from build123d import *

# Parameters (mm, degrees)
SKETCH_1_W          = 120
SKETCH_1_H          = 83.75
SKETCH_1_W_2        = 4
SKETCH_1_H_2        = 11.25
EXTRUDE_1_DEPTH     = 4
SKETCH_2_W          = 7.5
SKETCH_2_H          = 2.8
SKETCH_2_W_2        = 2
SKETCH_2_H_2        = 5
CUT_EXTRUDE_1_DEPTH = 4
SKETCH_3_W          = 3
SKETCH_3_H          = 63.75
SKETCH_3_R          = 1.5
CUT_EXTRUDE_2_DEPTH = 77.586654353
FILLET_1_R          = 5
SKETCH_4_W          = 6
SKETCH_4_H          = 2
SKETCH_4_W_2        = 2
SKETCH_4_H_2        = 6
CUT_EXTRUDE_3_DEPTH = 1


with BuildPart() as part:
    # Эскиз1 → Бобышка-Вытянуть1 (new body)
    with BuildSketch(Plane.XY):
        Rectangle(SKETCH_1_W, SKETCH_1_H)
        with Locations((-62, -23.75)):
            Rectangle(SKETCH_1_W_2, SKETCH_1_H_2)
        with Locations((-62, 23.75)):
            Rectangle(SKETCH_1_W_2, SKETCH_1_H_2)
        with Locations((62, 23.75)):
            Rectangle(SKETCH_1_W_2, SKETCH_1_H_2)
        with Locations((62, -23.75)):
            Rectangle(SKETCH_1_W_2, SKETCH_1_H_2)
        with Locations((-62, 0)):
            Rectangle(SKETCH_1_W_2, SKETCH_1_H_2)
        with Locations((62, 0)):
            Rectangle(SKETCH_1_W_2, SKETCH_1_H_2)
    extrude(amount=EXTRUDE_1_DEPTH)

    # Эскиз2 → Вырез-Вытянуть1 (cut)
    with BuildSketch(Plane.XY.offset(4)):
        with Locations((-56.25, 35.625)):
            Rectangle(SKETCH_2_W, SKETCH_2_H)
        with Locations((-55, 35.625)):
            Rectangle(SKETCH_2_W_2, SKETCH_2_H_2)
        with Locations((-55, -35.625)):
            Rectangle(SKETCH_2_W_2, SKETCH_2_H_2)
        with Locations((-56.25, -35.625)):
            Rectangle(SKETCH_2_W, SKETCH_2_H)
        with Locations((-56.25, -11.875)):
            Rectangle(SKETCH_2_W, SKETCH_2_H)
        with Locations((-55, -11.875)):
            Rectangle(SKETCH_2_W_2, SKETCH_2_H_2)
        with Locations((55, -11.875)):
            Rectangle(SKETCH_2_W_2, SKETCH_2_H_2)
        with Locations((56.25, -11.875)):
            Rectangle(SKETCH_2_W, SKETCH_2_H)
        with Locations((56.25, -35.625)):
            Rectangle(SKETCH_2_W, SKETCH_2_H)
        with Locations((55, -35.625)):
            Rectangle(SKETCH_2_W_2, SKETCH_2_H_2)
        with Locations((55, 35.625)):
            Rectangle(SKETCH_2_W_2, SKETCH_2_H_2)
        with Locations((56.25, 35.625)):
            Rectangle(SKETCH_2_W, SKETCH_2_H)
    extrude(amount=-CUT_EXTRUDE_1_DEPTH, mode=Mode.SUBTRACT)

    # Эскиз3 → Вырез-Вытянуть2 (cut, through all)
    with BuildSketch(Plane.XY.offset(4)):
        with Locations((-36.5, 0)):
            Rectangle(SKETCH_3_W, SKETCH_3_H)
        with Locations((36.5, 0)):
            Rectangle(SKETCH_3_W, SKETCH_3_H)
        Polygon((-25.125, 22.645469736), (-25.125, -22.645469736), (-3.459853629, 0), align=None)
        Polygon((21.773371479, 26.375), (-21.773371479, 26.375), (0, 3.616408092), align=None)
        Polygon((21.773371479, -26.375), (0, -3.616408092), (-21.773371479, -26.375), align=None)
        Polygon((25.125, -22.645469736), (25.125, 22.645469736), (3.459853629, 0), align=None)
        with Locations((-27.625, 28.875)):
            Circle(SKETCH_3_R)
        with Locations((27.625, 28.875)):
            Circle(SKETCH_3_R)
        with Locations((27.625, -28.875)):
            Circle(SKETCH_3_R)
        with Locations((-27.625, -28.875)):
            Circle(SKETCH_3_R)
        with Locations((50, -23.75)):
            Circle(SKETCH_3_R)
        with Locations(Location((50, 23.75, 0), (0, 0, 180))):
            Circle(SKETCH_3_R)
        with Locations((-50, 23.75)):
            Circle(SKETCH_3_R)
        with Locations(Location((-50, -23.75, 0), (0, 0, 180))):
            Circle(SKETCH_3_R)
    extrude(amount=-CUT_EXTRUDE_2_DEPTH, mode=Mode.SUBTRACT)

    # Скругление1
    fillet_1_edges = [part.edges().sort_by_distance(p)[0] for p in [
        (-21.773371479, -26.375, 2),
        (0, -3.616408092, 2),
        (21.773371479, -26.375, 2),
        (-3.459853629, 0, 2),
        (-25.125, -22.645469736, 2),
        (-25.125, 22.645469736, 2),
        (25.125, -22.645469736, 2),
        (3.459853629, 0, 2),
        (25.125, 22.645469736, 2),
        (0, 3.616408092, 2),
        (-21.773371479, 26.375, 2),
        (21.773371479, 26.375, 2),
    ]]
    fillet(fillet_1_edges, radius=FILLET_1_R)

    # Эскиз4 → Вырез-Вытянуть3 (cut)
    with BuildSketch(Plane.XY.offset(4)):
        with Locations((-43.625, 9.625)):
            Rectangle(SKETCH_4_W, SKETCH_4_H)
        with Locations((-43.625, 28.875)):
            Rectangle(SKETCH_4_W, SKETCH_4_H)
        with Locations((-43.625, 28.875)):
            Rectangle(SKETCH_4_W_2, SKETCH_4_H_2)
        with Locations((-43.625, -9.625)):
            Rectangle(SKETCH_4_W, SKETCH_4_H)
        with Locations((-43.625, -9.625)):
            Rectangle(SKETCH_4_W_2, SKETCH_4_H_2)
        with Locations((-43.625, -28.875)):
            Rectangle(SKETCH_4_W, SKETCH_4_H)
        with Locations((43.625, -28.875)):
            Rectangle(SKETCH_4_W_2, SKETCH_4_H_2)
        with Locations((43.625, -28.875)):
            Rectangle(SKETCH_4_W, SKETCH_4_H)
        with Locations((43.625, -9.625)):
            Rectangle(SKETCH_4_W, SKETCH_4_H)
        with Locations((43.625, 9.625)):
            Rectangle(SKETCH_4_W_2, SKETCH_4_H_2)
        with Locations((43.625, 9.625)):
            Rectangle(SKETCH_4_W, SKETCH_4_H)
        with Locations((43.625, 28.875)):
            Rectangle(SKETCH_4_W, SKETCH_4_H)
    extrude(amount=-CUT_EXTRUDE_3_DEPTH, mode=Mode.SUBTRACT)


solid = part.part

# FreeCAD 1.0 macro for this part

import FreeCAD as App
import Part
import Sketcher
from FreeCAD import Vector


def edges_at(feature, points):
    """Names of the edges that pass closest to the given points."""
    edges = feature.Shape.Edges
    near = lambda p: min(range(len(edges)), key=lambda i: edges[i].distToShape(Part.Vertex(*p))[0])
    return sorted({f"Edge{near(p) + 1}" for p in points})

doc = App.newDocument("Part")
body = doc.addObject("PartDesign::Body", "Body")

# Sketch on XY plane
sketch1 = doc.addObject("Sketcher::SketchObject", "Sketch")
body.addObject(sketch1)
sketch1.AttachmentSupport = (doc.XY_Plane, [""])
sketch1.MapMode = "FlatFace"
sketch1.addGeometry([
    Part.LineSegment(Vector(-60, -29.4, 0), Vector(-60, -41.9, 0)),  # 0
    Part.LineSegment(Vector(-60, -41.9, 0), Vector(60, -41.9, 0)),  # 1
    Part.LineSegment(Vector(60, -41.9, 0), Vector(60, -29.4, 0)),  # 2
    Part.LineSegment(Vector(60, -29.4, 0), Vector(64, -29.4, 0)),  # 3
    Part.LineSegment(Vector(64, -29.4, 0), Vector(64, -18.1, 0)),  # 4
    Part.LineSegment(Vector(64, -18.1, 0), Vector(60, -18.1, 0)),  # 5
    Part.LineSegment(Vector(60, -18.1, 0), Vector(60, -5.6, 0)),  # 6
    Part.LineSegment(Vector(60, -5.6, 0), Vector(64, -5.6, 0)),  # 7
    Part.LineSegment(Vector(64, -5.6, 0), Vector(64, 5.6, 0)),  # 8
    Part.LineSegment(Vector(64, 5.6, 0), Vector(60, 5.6, 0)),  # 9
    Part.LineSegment(Vector(60, 5.6, 0), Vector(60, 18.1, 0)),  # 10
    Part.LineSegment(Vector(60, 18.1, 0), Vector(64, 18.1, 0)),  # 11
    Part.LineSegment(Vector(64, 18.1, 0), Vector(64, 29.4, 0)),  # 12
    Part.LineSegment(Vector(64, 29.4, 0), Vector(60, 29.4, 0)),  # 13
    Part.LineSegment(Vector(60, 29.4, 0), Vector(60, 41.9, 0)),  # 14
    Part.LineSegment(Vector(60, 41.9, 0), Vector(-60, 41.9, 0)),  # 15
    Part.LineSegment(Vector(-60, 41.9, 0), Vector(-60, 29.4, 0)),  # 16
    Part.LineSegment(Vector(-60, 29.4, 0), Vector(-64, 29.4, 0)),  # 17
    Part.LineSegment(Vector(-64, 29.4, 0), Vector(-64, 18.1, 0)),  # 18
    Part.LineSegment(Vector(-64, 18.1, 0), Vector(-60, 18.1, 0)),  # 19
    Part.LineSegment(Vector(-60, 18.1, 0), Vector(-60, 5.6, 0)),  # 20
    Part.LineSegment(Vector(-60, 5.6, 0), Vector(-64, 5.6, 0)),  # 21
    Part.LineSegment(Vector(-64, 5.6, 0), Vector(-64, -5.6, 0)),  # 22
    Part.LineSegment(Vector(-64, -5.6, 0), Vector(-60, -5.6, 0)),  # 23
    Part.LineSegment(Vector(-60, -5.6, 0), Vector(-60, -18.1, 0)),  # 24
    Part.LineSegment(Vector(-60, -18.1, 0), Vector(-64, -18.1, 0)),  # 25
    Part.LineSegment(Vector(-64, -18.1, 0), Vector(-64, -29.4, 0)),  # 26
    Part.LineSegment(Vector(-64, -29.4, 0), Vector(-60, -29.4, 0)),  # 27
], False)
sketch1.addConstraint([
    Sketcher.Constraint("Coincident", 0, 2, 1, 1),
    Sketcher.Constraint("Coincident", 1, 2, 2, 1),
    Sketcher.Constraint("Coincident", 2, 2, 3, 1),
    Sketcher.Constraint("Coincident", 3, 2, 4, 1),
    Sketcher.Constraint("Coincident", 4, 2, 5, 1),
    Sketcher.Constraint("Coincident", 5, 2, 6, 1),
    Sketcher.Constraint("Coincident", 6, 2, 7, 1),
    Sketcher.Constraint("Coincident", 7, 2, 8, 1),
    Sketcher.Constraint("Coincident", 8, 2, 9, 1),
    Sketcher.Constraint("Coincident", 9, 2, 10, 1),
    Sketcher.Constraint("Coincident", 10, 2, 11, 1),
    Sketcher.Constraint("Coincident", 11, 2, 12, 1),
    Sketcher.Constraint("Coincident", 12, 2, 13, 1),
    Sketcher.Constraint("Coincident", 13, 2, 14, 1),
    Sketcher.Constraint("Coincident", 14, 2, 15, 1),
    Sketcher.Constraint("Coincident", 15, 2, 16, 1),
    Sketcher.Constraint("Coincident", 16, 2, 17, 1),
    Sketcher.Constraint("Coincident", 17, 2, 18, 1),
    Sketcher.Constraint("Coincident", 18, 2, 19, 1),
    Sketcher.Constraint("Coincident", 19, 2, 20, 1),
    Sketcher.Constraint("Coincident", 20, 2, 21, 1),
    Sketcher.Constraint("Coincident", 21, 2, 22, 1),
    Sketcher.Constraint("Coincident", 22, 2, 23, 1),
    Sketcher.Constraint("Coincident", 23, 2, 24, 1),
    Sketcher.Constraint("Coincident", 24, 2, 25, 1),
    Sketcher.Constraint("Coincident", 25, 2, 26, 1),
    Sketcher.Constraint("Coincident", 26, 2, 27, 1),
    Sketcher.Constraint("Coincident", 27, 2, 0, 1),
    Sketcher.Constraint("Vertical", 0),
    Sketcher.Constraint("Horizontal", 1),
    Sketcher.Constraint("Vertical", 2),
    Sketcher.Constraint("Horizontal", 3),
    Sketcher.Constraint("Vertical", 4),
    Sketcher.Constraint("Horizontal", 5),
    Sketcher.Constraint("Vertical", 6),
    Sketcher.Constraint("Horizontal", 7),
    Sketcher.Constraint("Vertical", 8),
    Sketcher.Constraint("Horizontal", 9),
    Sketcher.Constraint("Vertical", 10),
    Sketcher.Constraint("Horizontal", 11),
    Sketcher.Constraint("Vertical", 12),
    Sketcher.Constraint("Horizontal", 13),
    Sketcher.Constraint("Vertical", 14),
    Sketcher.Constraint("Horizontal", 15),
    Sketcher.Constraint("Vertical", 16),
    Sketcher.Constraint("Horizontal", 17),
    Sketcher.Constraint("Vertical", 18),
    Sketcher.Constraint("Horizontal", 19),
    Sketcher.Constraint("Vertical", 20),
    Sketcher.Constraint("Horizontal", 21),
    Sketcher.Constraint("Vertical", 22),
    Sketcher.Constraint("Horizontal", 23),
    Sketcher.Constraint("Vertical", 24),
    Sketcher.Constraint("Horizontal", 25),
    Sketcher.Constraint("Vertical", 26),
    Sketcher.Constraint("Horizontal", 27),
    Sketcher.Constraint("Symmetric", 0, 2, 14, 2, -1, 1),
    Sketcher.Constraint("Symmetric", 2, 2, 16, 2, -1, 1),
    Sketcher.Constraint("Symmetric", 4, 2, 18, 2, -1, 1),
    Sketcher.Constraint("Symmetric", 6, 2, 20, 2, -1, 1),
    Sketcher.Constraint("Symmetric", 8, 2, 22, 2, -1, 1),
    Sketcher.Constraint("Symmetric", 10, 2, 24, 2, -1, 1),
    Sketcher.Constraint("Symmetric", 12, 2, 26, 2, -1, 1),
    Sketcher.Constraint("Symmetric", 13, 2, 16, 2, -2),
    Sketcher.Constraint("Symmetric", 11, 2, 18, 2, -2),
    Sketcher.Constraint("Symmetric", 9, 2, 20, 2, -2),
    Sketcher.Constraint("Vertical", 2, 2, 5, 2),
    Sketcher.Constraint("Vertical", 4, 2, 7, 2),
    Sketcher.Constraint("Equal", 2, 6),
    Sketcher.Constraint("Equal", 4, 8),
    Sketcher.Constraint("DistanceX", 1, 1, 1, 2, 120.0),
    Sketcher.Constraint("DistanceX", 3, 1, 3, 2, 4.0),
    Sketcher.Constraint("DistanceY", 0, 2, 0, 1, 12.5),
    Sketcher.Constraint("DistanceY", 3, 2, 8, 2, 35.0),
])
pad1 = doc.addObject("PartDesign::Pad", "Pad")
body.addObject(pad1)
pad1.Profile = sketch1
pad1.Length = 4

# Sketch on XY plane
sketch2 = doc.addObject("Sketcher::SketchObject", "Sketch001")
body.addObject(sketch2)
sketch2.AttachmentSupport = (doc.XY_Plane, [""])
sketch2.MapMode = "FlatFace"
sketch2.AttachmentOffset = App.Placement(Vector(0, 0, 4), App.Rotation())
sketch2.addGeometry([
    Part.LineSegment(Vector(-60, 37, 0), Vector(-60, 34.2, 0)),  # 0
    Part.LineSegment(Vector(-60, 34.2, 0), Vector(-56, 34.2, 0)),  # 1
    Part.LineSegment(Vector(-56, 34.2, 0), Vector(-56, 33.1, 0)),  # 2
    Part.LineSegment(Vector(-56, 33.1, 0), Vector(-54, 33.1, 0)),  # 3
    Part.LineSegment(Vector(-54, 33.1, 0), Vector(-54, 34.2, 0)),  # 4
    Part.LineSegment(Vector(-54, 34.2, 0), Vector(-52.5, 34.2, 0)),  # 5
    Part.LineSegment(Vector(-52.5, 34.2, 0), Vector(-52.5, 37, 0)),  # 6
    Part.LineSegment(Vector(-52.5, 37, 0), Vector(-54, 37, 0)),  # 7
    Part.LineSegment(Vector(-54, 37, 0), Vector(-54, 38.1, 0)),  # 8
    Part.LineSegment(Vector(-54, 38.1, 0), Vector(-56, 38.1, 0)),  # 9
    Part.LineSegment(Vector(-56, 38.1, 0), Vector(-56, 37, 0)),  # 10
    Part.LineSegment(Vector(-56, 37, 0), Vector(-60, 37, 0)),  # 11
    Part.LineSegment(Vector(-56, -37, 0), Vector(-56, -38.1, 0)),  # 12
    Part.LineSegment(Vector(-56, -38.1, 0), Vector(-54, -38.1, 0)),  # 13
    Part.LineSegment(Vector(-54, -38.1, 0), Vector(-54, -37, 0)),  # 14
    Part.LineSegment(Vector(-54, -37, 0), Vector(-52.5, -37, 0)),  # 15
    Part.LineSegment(Vector(-52.5, -37, 0), Vector(-52.5, -34.2, 0)),  # 16
    Part.LineSegment(Vector(-52.5, -34.2, 0), Vector(-54, -34.2, 0)),  # 17
    Part.LineSegment(Vector(-54, -34.2, 0), Vector(-54, -33.1, 0)),  # 18
    Part.LineSegment(Vector(-54, -33.1, 0), Vector(-56, -33.1, 0)),  # 19
    Part.LineSegment(Vector(-56, -33.1, 0), Vector(-56, -34.2, 0)),  # 20
    Part.LineSegment(Vector(-56, -34.2, 0), Vector(-60, -34.2, 0)),  # 21
    Part.LineSegment(Vector(-60, -34.2, 0), Vector(-60, -37, 0)),  # 22
    Part.LineSegment(Vector(-60, -37, 0), Vector(-56, -37, 0)),  # 23
    Part.LineSegment(Vector(-60, -10.5, 0), Vector(-60, -13.3, 0)),  # 24
    Part.LineSegment(Vector(-60, -13.3, 0), Vector(-56, -13.3, 0)),  # 25
    Part.LineSegment(Vector(-56, -13.3, 0), Vector(-56, -14.4, 0)),  # 26
    Part.LineSegment(Vector(-56, -14.4, 0), Vector(-54, -14.4, 0)),  # 27
    Part.LineSegment(Vector(-54, -14.4, 0), Vector(-54, -13.3, 0)),  # 28
    Part.LineSegment(Vector(-54, -13.3, 0), Vector(-52.5, -13.3, 0)),  # 29
    Part.LineSegment(Vector(-52.5, -13.3, 0), Vector(-52.5, -10.5, 0)),  # 30
    Part.LineSegment(Vector(-52.5, -10.5, 0), Vector(-54, -10.5, 0)),  # 31
    Part.LineSegment(Vector(-54, -10.5, 0), Vector(-54, -9.4, 0)),  # 32
    Part.LineSegment(Vector(-54, -9.4, 0), Vector(-56, -9.4, 0)),  # 33
    Part.LineSegment(Vector(-56, -9.4, 0), Vector(-56, -10.5, 0)),  # 34
    Part.LineSegment(Vector(-56, -10.5, 0), Vector(-60, -10.5, 0)),  # 35
    Part.LineSegment(Vector(54, -13.3, 0), Vector(54, -14.4, 0)),  # 36
    Part.LineSegment(Vector(54, -14.4, 0), Vector(56, -14.4, 0)),  # 37
    Part.LineSegment(Vector(56, -14.4, 0), Vector(56, -13.3, 0)),  # 38
    Part.LineSegment(Vector(56, -13.3, 0), Vector(60, -13.3, 0)),  # 39
    Part.LineSegment(Vector(60, -13.3, 0), Vector(60, -10.5, 0)),  # 40
    Part.LineSegment(Vector(60, -10.5, 0), Vector(56, -10.5, 0)),  # 41
    Part.LineSegment(Vector(56, -10.5, 0), Vector(56, -9.4, 0)),  # 42
    Part.LineSegment(Vector(56, -9.4, 0), Vector(54, -9.4, 0)),  # 43
    Part.LineSegment(Vector(54, -9.4, 0), Vector(54, -10.5, 0)),  # 44
    Part.LineSegment(Vector(54, -10.5, 0), Vector(52.5, -10.5, 0)),  # 45
    Part.LineSegment(Vector(52.5, -10.5, 0), Vector(52.5, -13.3, 0)),  # 46
    Part.LineSegment(Vector(52.5, -13.3, 0), Vector(54, -13.3, 0)),  # 47
    Part.LineSegment(Vector(52.5, -34.2, 0), Vector(52.5, -37, 0)),  # 48
    Part.LineSegment(Vector(52.5, -37, 0), Vector(54, -37, 0)),  # 49
    Part.LineSegment(Vector(54, -37, 0), Vector(54, -38.1, 0)),  # 50
    Part.LineSegment(Vector(54, -38.1, 0), Vector(56, -38.1, 0)),  # 51
    Part.LineSegment(Vector(56, -38.1, 0), Vector(56, -37, 0)),  # 52
    Part.LineSegment(Vector(56, -37, 0), Vector(60, -37, 0)),  # 53
    Part.LineSegment(Vector(60, -37, 0), Vector(60, -34.2, 0)),  # 54
    Part.LineSegment(Vector(60, -34.2, 0), Vector(56, -34.2, 0)),  # 55
    Part.LineSegment(Vector(56, -34.2, 0), Vector(56, -33.1, 0)),  # 56
    Part.LineSegment(Vector(56, -33.1, 0), Vector(54, -33.1, 0)),  # 57
    Part.LineSegment(Vector(54, -33.1, 0), Vector(54, -34.2, 0)),  # 58
    Part.LineSegment(Vector(54, -34.2, 0), Vector(52.5, -34.2, 0)),  # 59
    Part.LineSegment(Vector(54, 34.2, 0), Vector(54, 33.1, 0)),  # 60
    Part.LineSegment(Vector(54, 33.1, 0), Vector(56, 33.1, 0)),  # 61
    Part.LineSegment(Vector(56, 33.1, 0), Vector(56, 34.2, 0)),  # 62
    Part.LineSegment(Vector(56, 34.2, 0), Vector(60, 34.2, 0)),  # 63
    Part.LineSegment(Vector(60, 34.2, 0), Vector(60, 37, 0)),  # 64
    Part.LineSegment(Vector(60, 37, 0), Vector(56, 37, 0)),  # 65
    Part.LineSegment(Vector(56, 37, 0), Vector(56, 38.1, 0)),  # 66
    Part.LineSegment(Vector(56, 38.1, 0), Vector(54, 38.1, 0)),  # 67
    Part.LineSegment(Vector(54, 38.1, 0), Vector(54, 37, 0)),  # 68
    Part.LineSegment(Vector(54, 37, 0), Vector(52.5, 37, 0)),  # 69
    Part.LineSegment(Vector(52.5, 37, 0), Vector(52.5, 34.2, 0)),  # 70
    Part.LineSegment(Vector(52.5, 34.2, 0), Vector(54, 34.2, 0)),  # 71
], False)
sketch2.addConstraint([
    Sketcher.Constraint("Coincident", 0, 2, 1, 1),
    Sketcher.Constraint("Coincident", 1, 2, 2, 1),
    Sketcher.Constraint("Coincident", 2, 2, 3, 1),
    Sketcher.Constraint("Coincident", 3, 2, 4, 1),
    Sketcher.Constraint("Coincident", 4, 2, 5, 1),
    Sketcher.Constraint("Coincident", 5, 2, 6, 1),
    Sketcher.Constraint("Coincident", 6, 2, 7, 1),
    Sketcher.Constraint("Coincident", 7, 2, 8, 1),
    Sketcher.Constraint("Coincident", 8, 2, 9, 1),
    Sketcher.Constraint("Coincident", 9, 2, 10, 1),
    Sketcher.Constraint("Coincident", 10, 2, 11, 1),
    Sketcher.Constraint("Coincident", 11, 2, 0, 1),
    Sketcher.Constraint("Coincident", 12, 2, 13, 1),
    Sketcher.Constraint("Coincident", 13, 2, 14, 1),
    Sketcher.Constraint("Coincident", 14, 2, 15, 1),
    Sketcher.Constraint("Coincident", 15, 2, 16, 1),
    Sketcher.Constraint("Coincident", 16, 2, 17, 1),
    Sketcher.Constraint("Coincident", 17, 2, 18, 1),
    Sketcher.Constraint("Coincident", 18, 2, 19, 1),
    Sketcher.Constraint("Coincident", 19, 2, 20, 1),
    Sketcher.Constraint("Coincident", 20, 2, 21, 1),
    Sketcher.Constraint("Coincident", 21, 2, 22, 1),
    Sketcher.Constraint("Coincident", 22, 2, 23, 1),
    Sketcher.Constraint("Coincident", 23, 2, 12, 1),
    Sketcher.Constraint("Coincident", 24, 2, 25, 1),
    Sketcher.Constraint("Coincident", 25, 2, 26, 1),
    Sketcher.Constraint("Coincident", 26, 2, 27, 1),
    Sketcher.Constraint("Coincident", 27, 2, 28, 1),
    Sketcher.Constraint("Coincident", 28, 2, 29, 1),
    Sketcher.Constraint("Coincident", 29, 2, 30, 1),
    Sketcher.Constraint("Coincident", 30, 2, 31, 1),
    Sketcher.Constraint("Coincident", 31, 2, 32, 1),
    Sketcher.Constraint("Coincident", 32, 2, 33, 1),
    Sketcher.Constraint("Coincident", 33, 2, 34, 1),
    Sketcher.Constraint("Coincident", 34, 2, 35, 1),
    Sketcher.Constraint("Coincident", 35, 2, 24, 1),
    Sketcher.Constraint("Coincident", 36, 2, 37, 1),
    Sketcher.Constraint("Coincident", 37, 2, 38, 1),
    Sketcher.Constraint("Coincident", 38, 2, 39, 1),
    Sketcher.Constraint("Coincident", 39, 2, 40, 1),
    Sketcher.Constraint("Coincident", 40, 2, 41, 1),
    Sketcher.Constraint("Coincident", 41, 2, 42, 1),
    Sketcher.Constraint("Coincident", 42, 2, 43, 1),
    Sketcher.Constraint("Coincident", 43, 2, 44, 1),
    Sketcher.Constraint("Coincident", 44, 2, 45, 1),
    Sketcher.Constraint("Coincident", 45, 2, 46, 1),
    Sketcher.Constraint("Coincident", 46, 2, 47, 1),
    Sketcher.Constraint("Coincident", 47, 2, 36, 1),
    Sketcher.Constraint("Coincident", 48, 2, 49, 1),
    Sketcher.Constraint("Coincident", 49, 2, 50, 1),
    Sketcher.Constraint("Coincident", 50, 2, 51, 1),
    Sketcher.Constraint("Coincident", 51, 2, 52, 1),
    Sketcher.Constraint("Coincident", 52, 2, 53, 1),
    Sketcher.Constraint("Coincident", 53, 2, 54, 1),
    Sketcher.Constraint("Coincident", 54, 2, 55, 1),
    Sketcher.Constraint("Coincident", 55, 2, 56, 1),
    Sketcher.Constraint("Coincident", 56, 2, 57, 1),
    Sketcher.Constraint("Coincident", 57, 2, 58, 1),
    Sketcher.Constraint("Coincident", 58, 2, 59, 1),
    Sketcher.Constraint("Coincident", 59, 2, 48, 1),
    Sketcher.Constraint("Coincident", 60, 2, 61, 1),
    Sketcher.Constraint("Coincident", 61, 2, 62, 1),
    Sketcher.Constraint("Coincident", 62, 2, 63, 1),
    Sketcher.Constraint("Coincident", 63, 2, 64, 1),
    Sketcher.Constraint("Coincident", 64, 2, 65, 1),
    Sketcher.Constraint("Coincident", 65, 2, 66, 1),
    Sketcher.Constraint("Coincident", 66, 2, 67, 1),
    Sketcher.Constraint("Coincident", 67, 2, 68, 1),
    Sketcher.Constraint("Coincident", 68, 2, 69, 1),
    Sketcher.Constraint("Coincident", 69, 2, 70, 1),
    Sketcher.Constraint("Coincident", 70, 2, 71, 1),
    Sketcher.Constraint("Coincident", 71, 2, 60, 1),
    Sketcher.Constraint("Vertical", 0),
    Sketcher.Constraint("Horizontal", 1),
    Sketcher.Constraint("Vertical", 2),
    Sketcher.Constraint("Horizontal", 3),
    Sketcher.Constraint("Vertical", 4),
    Sketcher.Constraint("Horizontal", 5),
    Sketcher.Constraint("Vertical", 6),
    Sketcher.Constraint("Horizontal", 7),
    Sketcher.Constraint("Vertical", 8),
    Sketcher.Constraint("Horizontal", 9),
    Sketcher.Constraint("Vertical", 10),
    Sketcher.Constraint("Horizontal", 11),
    Sketcher.Constraint("Vertical", 12),
    Sketcher.Constraint("Horizontal", 13),
    Sketcher.Constraint("Vertical", 14),
    Sketcher.Constraint("Horizontal", 15),
    Sketcher.Constraint("Vertical", 16),
    Sketcher.Constraint("Horizontal", 17),
    Sketcher.Constraint("Vertical", 18),
    Sketcher.Constraint("Horizontal", 19),
    Sketcher.Constraint("Vertical", 20),
    Sketcher.Constraint("Horizontal", 21),
    Sketcher.Constraint("Vertical", 22),
    Sketcher.Constraint("Horizontal", 23),
    Sketcher.Constraint("Vertical", 24),
    Sketcher.Constraint("Horizontal", 25),
    Sketcher.Constraint("Vertical", 26),
    Sketcher.Constraint("Horizontal", 27),
    Sketcher.Constraint("Vertical", 28),
    Sketcher.Constraint("Horizontal", 29),
    Sketcher.Constraint("Vertical", 30),
    Sketcher.Constraint("Horizontal", 31),
    Sketcher.Constraint("Vertical", 32),
    Sketcher.Constraint("Horizontal", 33),
    Sketcher.Constraint("Vertical", 34),
    Sketcher.Constraint("Horizontal", 35),
    Sketcher.Constraint("Vertical", 36),
    Sketcher.Constraint("Horizontal", 37),
    Sketcher.Constraint("Vertical", 38),
    Sketcher.Constraint("Horizontal", 39),
    Sketcher.Constraint("Vertical", 40),
    Sketcher.Constraint("Horizontal", 41),
    Sketcher.Constraint("Vertical", 42),
    Sketcher.Constraint("Horizontal", 43),
    Sketcher.Constraint("Vertical", 44),
    Sketcher.Constraint("Horizontal", 45),
    Sketcher.Constraint("Vertical", 46),
    Sketcher.Constraint("Horizontal", 47),
    Sketcher.Constraint("Vertical", 48),
    Sketcher.Constraint("Horizontal", 49),
    Sketcher.Constraint("Vertical", 50),
    Sketcher.Constraint("Horizontal", 51),
    Sketcher.Constraint("Vertical", 52),
    Sketcher.Constraint("Horizontal", 53),
    Sketcher.Constraint("Vertical", 54),
    Sketcher.Constraint("Horizontal", 55),
    Sketcher.Constraint("Vertical", 56),
    Sketcher.Constraint("Horizontal", 57),
    Sketcher.Constraint("Vertical", 58),
    Sketcher.Constraint("Horizontal", 59),
    Sketcher.Constraint("Vertical", 60),
    Sketcher.Constraint("Horizontal", 61),
    Sketcher.Constraint("Vertical", 62),
    Sketcher.Constraint("Horizontal", 63),
    Sketcher.Constraint("Vertical", 64),
    Sketcher.Constraint("Horizontal", 65),
    Sketcher.Constraint("Vertical", 66),
    Sketcher.Constraint("Horizontal", 67),
    Sketcher.Constraint("Vertical", 68),
    Sketcher.Constraint("Horizontal", 69),
    Sketcher.Constraint("Vertical", 70),
    Sketcher.Constraint("Horizontal", 71),
    Sketcher.Constraint("Symmetric", 6, 2, 48, 2, -1, 1),
    Sketcher.Constraint("Symmetric", 8, 2, 50, 2, -1, 1),
    Sketcher.Constraint("Symmetric", 10, 2, 52, 2, -1, 1),
    Sketcher.Constraint("Symmetric", 0, 2, 54, 2, -1, 1),
    Sketcher.Constraint("Symmetric", 2, 2, 56, 2, -1, 1),
    Sketcher.Constraint("Symmetric", 4, 2, 58, 2, -1, 1),
    Sketcher.Constraint("Symmetric", 18, 2, 60, 2, -1, 1),
    Sketcher.Constraint("Symmetric", 20, 2, 62, 2, -1, 1),
    Sketcher.Constraint("Symmetric", 22, 2, 64, 2, -1, 1),
    Sketcher.Constraint("Symmetric", 12, 2, 66, 2, -1, 1),
    Sketcher.Constraint("Symmetric", 14, 2, 68, 2, -1, 1),
    Sketcher.Constraint("Symmetric", 16, 2, 70, 2, -1, 1),
    Sketcher.Constraint("Symmetric", 27, 2, 36, 2, -2),
    Sketcher.Constraint("Symmetric", 25, 2, 38, 2, -2),
    Sketcher.Constraint("Symmetric", 35, 2, 40, 2, -2),
    Sketcher.Constraint("Symmetric", 33, 2, 42, 2, -2),
    Sketcher.Constraint("Symmetric", 31, 2, 44, 2, -2),
    Sketcher.Constraint("Symmetric", 29, 2, 46, 2, -2),
    Sketcher.Constraint("Symmetric", 15, 2, 48, 2, -2),
    Sketcher.Constraint("Symmetric", 13, 2, 50, 2, -2),
    Sketcher.Constraint("Symmetric", 23, 2, 52, 2, -2),
    Sketcher.Constraint("Symmetric", 21, 2, 54, 2, -2),
    Sketcher.Constraint("Symmetric", 19, 2, 56, 2, -2),
    Sketcher.Constraint("Symmetric", 17, 2, 58, 2, -2),
    Sketcher.Constraint("Horizontal", 1, 2, 4, 2),
    Sketcher.Constraint("Horizontal", 7, 2, 10, 2),
    Sketcher.Constraint("Horizontal", 25, 2, 28, 2),
    Sketcher.Constraint("Horizontal", 31, 2, 34, 2),
    Sketcher.Constraint("Vertical", 4, 2, 7, 2),
    Sketcher.Constraint("Vertical", 2, 2, 9, 2),
    Sketcher.Constraint("Vertical", 22, 2, 24, 2),
    Sketcher.Constraint("Vertical", 23, 2, 25, 2),
    Sketcher.Constraint("Vertical", 18, 2, 27, 2),
    Sketcher.Constraint("Vertical", 16, 2, 29, 2),
    Sketcher.Constraint("Vertical", 28, 2, 31, 2),
    Sketcher.Constraint("Vertical", 26, 2, 33, 2),
    Sketcher.Constraint("Equal", 4, 8),
    Sketcher.Constraint("Equal", 22, 24),
    Sketcher.Constraint("Equal", 20, 26),
    Sketcher.Constraint("Equal", 28, 32),
    Sketcher.Constraint("DistanceX", 1, 1, 1, 2, 4.0),
    Sketcher.Constraint("DistanceX", 3, 1, 3, 2, 2.0),
    Sketcher.Constraint("DistanceX", 5, 1, 5, 2, 1.5),
    Sketcher.Constraint("DistanceY", 0, 2, 0, 1, 2.8),
    Sketcher.Constraint("DistanceY", 2, 2, 2, 1, 1.1),
    Sketcher.Constraint("DistanceX", 0, 2, -1, 1, 60.0),
    Sketcher.Constraint("DistanceY", -1, 1, 0, 2, 34.225),
    Sketcher.Constraint("DistanceY", 24, 2, -1, 1, 13.275),
])
pocket1 = doc.addObject("PartDesign::Pocket", "Pocket")
body.addObject(pocket1)
pocket1.Profile = sketch2
pocket1.Length = 4

# Sketch on XY plane
sketch3 = doc.addObject("Sketcher::SketchObject", "Sketch002")
body.addObject(sketch3)
sketch3.AttachmentSupport = (doc.XY_Plane, [""])
sketch3.MapMode = "FlatFace"
sketch3.AttachmentOffset = App.Placement(Vector(0, 0, 4), App.Rotation())
sketch3.addGeometry([
    Part.LineSegment(Vector(-38, 31.9, 0), Vector(-38, -31.9, 0)),  # 0
    Part.LineSegment(Vector(-38, -31.9, 0), Vector(-35, -31.9, 0)),  # 1
    Part.LineSegment(Vector(-35, -31.9, 0), Vector(-35, 31.9, 0)),  # 2
    Part.LineSegment(Vector(-35, 31.9, 0), Vector(-38, 31.9, 0)),  # 3
    Part.LineSegment(Vector(35, 31.9, 0), Vector(35, -31.9, 0)),  # 4
    Part.LineSegment(Vector(35, -31.9, 0), Vector(38, -31.9, 0)),  # 5
    Part.LineSegment(Vector(38, -31.9, 0), Vector(38, 31.9, 0)),  # 6
    Part.LineSegment(Vector(38, 31.9, 0), Vector(35, 31.9, 0)),  # 7
    Part.LineSegment(Vector(-25.1, 22.6, 0), Vector(-25.1, -22.6, 0)),  # 8
    Part.LineSegment(Vector(-25.1, -22.6, 0), Vector(-3.5, 0, 0)),  # 9
    Part.LineSegment(Vector(-3.5, 0, 0), Vector(-25.1, 22.6, 0)),  # 10
    Part.LineSegment(Vector(21.8, 26.4, 0), Vector(-21.8, 26.4, 0)),  # 11
    Part.LineSegment(Vector(-21.8, 26.4, 0), Vector(0, 3.6, 0)),  # 12
    Part.LineSegment(Vector(0, 3.6, 0), Vector(21.8, 26.4, 0)),  # 13
    Part.LineSegment(Vector(21.8, -26.4, 0), Vector(0, -3.6, 0)),  # 14
    Part.LineSegment(Vector(0, -3.6, 0), Vector(-21.8, -26.4, 0)),  # 15
    Part.LineSegment(Vector(-21.8, -26.4, 0), Vector(21.8, -26.4, 0)),  # 16
    Part.LineSegment(Vector(25.1, -22.6, 0), Vector(25.1, 22.6, 0)),  # 17
    Part.LineSegment(Vector(25.1, 22.6, 0), Vector(3.5, 0, 0)),  # 18
    Part.LineSegment(Vector(3.5, 0, 0), Vector(25.1, -22.6, 0)),  # 19
    Part.Circle(Vector(-27.6, 28.9, 0), Vector(0, 0, 1), 1.5),  # 20
    Part.Circle(Vector(27.6, 28.9, 0), Vector(0, 0, 1), 1.5),  # 21
    Part.Circle(Vector(27.6, -28.9, 0), Vector(0, 0, 1), 1.5),  # 22
    Part.Circle(Vector(-27.6, -28.9, 0), Vector(0, 0, 1), 1.5),  # 23
    Part.Circle(Vector(50, -23.8, 0), Vector(0, 0, 1), 1.5),  # 24
    Part.Circle(Vector(50, 23.8, 0), Vector(0, 0, 1), 1.5),  # 25
    Part.Circle(Vector(-50, 23.8, 0), Vector(0, 0, 1), 1.5),  # 26
    Part.Circle(Vector(-50, -23.8, 0), Vector(0, 0, 1), 1.5),  # 27
], False)
sketch3.addConstraint([
    Sketcher.Constraint("Coincident", 0, 2, 1, 1),
    Sketcher.Constraint("Coincident", 1, 2, 2, 1),
    Sketcher.Constraint("Coincident", 2, 2, 3, 1),
    Sketcher.Constraint("Coincident", 3, 2, 0, 1),
    Sketcher.Constraint("Coincident", 4, 2, 5, 1),
    Sketcher.Constraint("Coincident", 5, 2, 6, 1),
    Sketcher.Constraint("Coincident", 6, 2, 7, 1),
    Sketcher.Constraint("Coincident", 7, 2, 4, 1),
    Sketcher.Constraint("Coincident", 8, 2, 9, 1),
    Sketcher.Constraint("Coincident", 9, 2, 10, 1),
    Sketcher.Constraint("Coincident", 10, 2, 8, 1),
    Sketcher.Constraint("Coincident", 11, 2, 12, 1),
    Sketcher.Constraint("Coincident", 12, 2, 13, 1),
    Sketcher.Constraint("Coincident", 13, 2, 11, 1),
    Sketcher.Constraint("Coincident", 14, 2, 15, 1),
    Sketcher.Constraint("Coincident", 15, 2, 16, 1),
    Sketcher.Constraint("Coincident", 16, 2, 14, 1),
    Sketcher.Constraint("Coincident", 17, 2, 18, 1),
    Sketcher.Constraint("Coincident", 18, 2, 19, 1),
    Sketcher.Constraint("Coincident", 19, 2, 17, 1),
    Sketcher.Constraint("Vertical", 0),
    Sketcher.Constraint("Horizontal", 1),
    Sketcher.Constraint("Vertical", 2),
    Sketcher.Constraint("Horizontal", 3),
    Sketcher.Constraint("Vertical", 4),
    Sketcher.Constraint("Horizontal", 5),
    Sketcher.Constraint("Vertical", 6),
    Sketcher.Constraint("Horizontal", 7),
    Sketcher.Constraint("Vertical", 8),
    Sketcher.Constraint("Horizontal", 11),
    Sketcher.Constraint("Horizontal", 16),
    Sketcher.Constraint("Vertical", 17),
    Sketcher.Constraint("Equal", 20, 21),
    Sketcher.Constraint("Equal", 21, 22),
    Sketcher.Constraint("Equal", 22, 23),
    Sketcher.Constraint("Equal", 23, 24),
    Sketcher.Constraint("Equal", 24, 25),
    Sketcher.Constraint("Equal", 25, 26),
    Sketcher.Constraint("Equal", 26, 27),
    Sketcher.Constraint("Symmetric", 20, 3, 22, 3, -1, 1),
    Sketcher.Constraint("Symmetric", 21, 3, 23, 3, -1, 1),
    Sketcher.Constraint("Symmetric", 24, 3, 26, 3, -1, 1),
    Sketcher.Constraint("Symmetric", 25, 3, 27, 3, -1, 1),
    Sketcher.Constraint("Symmetric", 2, 2, 4, 2, -1, 1),
    Sketcher.Constraint("Symmetric", 0, 2, 6, 2, -1, 1),
    Sketcher.Constraint("Symmetric", 12, 2, 14, 2, -1, 1),
    Sketcher.Constraint("Symmetric", 13, 2, 15, 2, -1, 1),
    Sketcher.Constraint("Symmetric", 8, 2, 17, 2, -1, 1),
    Sketcher.Constraint("Symmetric", 9, 2, 18, 2, -1, 1),
    Sketcher.Constraint("Symmetric", 20, 3, 21, 3, -2),
    Sketcher.Constraint("Symmetric", 25, 3, 26, 3, -2),
    Sketcher.Constraint("PointOnObject", 9, 2, -1),
    Sketcher.Constraint("PointOnObject", 12, 2, -2),
    Sketcher.Constraint("Parallel", 10, 12),
    Sketcher.Constraint("Parallel", 9, 13),
    Sketcher.Constraint("Parallel", 12, 14),
    Sketcher.Constraint("Parallel", 14, 19),
    Sketcher.Constraint("Horizontal", 1, 2, 4, 2),
    Sketcher.Constraint("Horizontal", 10, 2, 17, 2),
    Sketcher.Constraint("Diameter", 20, 3.0),
    Sketcher.Constraint("DistanceX", 1, 1, 1, 2, 3.0),
    Sketcher.Constraint("DistanceX", -1, 1, 24, 3, 50.0),
    Sketcher.Constraint("DistanceX", 0, 2, -1, 1, 38.0),
    Sketcher.Constraint("DistanceY", 0, 2, 23, 3, 3.0),
    Sketcher.Constraint("DistanceY", 0, 2, 0, 1, 63.75),
    Sketcher.Constraint("DistanceY", 24, 3, 25, 3, 47.5),
    Sketcher.Constraint("DistanceX", 23, 3, 8, 2, 2.5),
    Sketcher.Constraint("DistanceY", 11, 2, 20, 3, 2.5),
    Sketcher.Constraint("DistanceX", 20, 3, 21, 3, 55.25),
    Sketcher.Constraint("DistanceY", 8, 2, 8, 1, 45.290939),
    Sketcher.Constraint("Distance", 12, 31.496559),
    Sketcher.Constraint("DistanceX", 11, 2, 11, 1, 43.546743),
])
pocket2 = doc.addObject("PartDesign::Pocket", "Pocket001")
body.addObject(pocket2)
pocket2.Profile = sketch3
pocket2.Type = "ThroughAll"
doc.recompute()

fillet = doc.addObject("PartDesign::Fillet", "Fillet")
body.addObject(fillet)
fillet.Base = (pocket2, edges_at(pocket2, [
    (-21.773, -26.375, 2),
    (0, -3.616, 2),
    (21.773, -26.375, 2),
    (-3.46, 0, 2),
    (-25.125, -22.645, 2),
    (-25.125, 22.645, 2),
    (25.125, -22.645, 2),
    (3.46, 0, 2),
    (25.125, 22.645, 2),
    (0, 3.616, 2),
    (-21.773, 26.375, 2),
    (21.773, 26.375, 2),
]))
fillet.Radius = 5

# Sketch on XY plane
sketch4 = doc.addObject("Sketcher::SketchObject", "Sketch003")
body.addObject(sketch4)
sketch4.AttachmentSupport = (doc.XY_Plane, [""])
sketch4.MapMode = "FlatFace"
sketch4.AttachmentOffset = App.Placement(Vector(0, 0, 4), App.Rotation())
sketch4.addGeometry([
    Part.LineSegment(Vector(-46.6, 10.6, 0), Vector(-46.6, 8.6, 0)),  # 0
    Part.LineSegment(Vector(-46.6, 8.6, 0), Vector(-40.6, 8.6, 0)),  # 1
    Part.LineSegment(Vector(-40.6, 8.6, 0), Vector(-40.6, 10.6, 0)),  # 2
    Part.LineSegment(Vector(-40.6, 10.6, 0), Vector(-46.6, 10.6, 0)),  # 3
    Part.LineSegment(Vector(-46.6, 29.9, 0), Vector(-46.6, 27.9, 0)),  # 4
    Part.LineSegment(Vector(-46.6, 27.9, 0), Vector(-44.6, 27.9, 0)),  # 5
    Part.LineSegment(Vector(-44.6, 27.9, 0), Vector(-44.6, 25.9, 0)),  # 6
    Part.LineSegment(Vector(-44.6, 25.9, 0), Vector(-42.6, 25.9, 0)),  # 7
    Part.LineSegment(Vector(-42.6, 25.9, 0), Vector(-42.6, 27.9, 0)),  # 8
    Part.LineSegment(Vector(-42.6, 27.9, 0), Vector(-40.6, 27.9, 0)),  # 9
    Part.LineSegment(Vector(-40.6, 27.9, 0), Vector(-40.6, 29.9, 0)),  # 10
    Part.LineSegment(Vector(-40.6, 29.9, 0), Vector(-42.6, 29.9, 0)),  # 11
    Part.LineSegment(Vector(-42.6, 29.9, 0), Vector(-42.6, 31.9, 0)),  # 12
    Part.LineSegment(Vector(-42.6, 31.9, 0), Vector(-44.6, 31.9, 0)),  # 13
    Part.LineSegment(Vector(-44.6, 31.9, 0), Vector(-44.6, 29.9, 0)),  # 14
    Part.LineSegment(Vector(-44.6, 29.9, 0), Vector(-46.6, 29.9, 0)),  # 15
    Part.LineSegment(Vector(-46.6, -8.6, 0), Vector(-46.6, -10.6, 0)),  # 16
    Part.LineSegment(Vector(-46.6, -10.6, 0), Vector(-44.6, -10.6, 0)),  # 17
    Part.LineSegment(Vector(-44.6, -10.6, 0), Vector(-44.6, -12.6, 0)),  # 18
    Part.LineSegment(Vector(-44.6, -12.6, 0), Vector(-42.6, -12.6, 0)),  # 19
    Part.LineSegment(Vector(-42.6, -12.6, 0), Vector(-42.6, -10.6, 0)),  # 20
    Part.LineSegment(Vector(-42.6, -10.6, 0), Vector(-40.6, -10.6, 0)),  # 21
    Part.LineSegment(Vector(-40.6, -10.6, 0), Vector(-40.6, -8.6, 0)),  # 22
    Part.LineSegment(Vector(-40.6, -8.6, 0), Vector(-42.6, -8.6, 0)),  # 23
    Part.LineSegment(Vector(-42.6, -8.6, 0), Vector(-42.6, -6.6, 0)),  # 24
    Part.LineSegment(Vector(-42.6, -6.6, 0), Vector(-44.6, -6.6, 0)),  # 25
    Part.LineSegment(Vector(-44.6, -6.6, 0), Vector(-44.6, -8.6, 0)),  # 26
    Part.LineSegment(Vector(-44.6, -8.6, 0), Vector(-46.6, -8.6, 0)),  # 27
    Part.LineSegment(Vector(-46.6, -27.9, 0), Vector(-46.6, -29.9, 0)),  # 28
    Part.LineSegment(Vector(-46.6, -29.9, 0), Vector(-40.6, -29.9, 0)),  # 29
    Part.LineSegment(Vector(-40.6, -29.9, 0), Vector(-40.6, -27.9, 0)),  # 30
    Part.LineSegment(Vector(-40.6, -27.9, 0), Vector(-46.6, -27.9, 0)),  # 31
    Part.LineSegment(Vector(42.6, -29.9, 0), Vector(42.6, -31.9, 0)),  # 32
    Part.LineSegment(Vector(42.6, -31.9, 0), Vector(44.6, -31.9, 0)),  # 33
    Part.LineSegment(Vector(44.6, -31.9, 0), Vector(44.6, -29.9, 0)),  # 34
    Part.LineSegment(Vector(44.6, -29.9, 0), Vector(46.6, -29.9, 0)),  # 35
    Part.LineSegment(Vector(46.6, -29.9, 0), Vector(46.6, -27.9, 0)),  # 36
    Part.LineSegment(Vector(46.6, -27.9, 0), Vector(44.6, -27.9, 0)),  # 37
    Part.LineSegment(Vector(44.6, -27.9, 0), Vector(44.6, -25.9, 0)),  # 38
    Part.LineSegment(Vector(44.6, -25.9, 0), Vector(42.6, -25.9, 0)),  # 39
    Part.LineSegment(Vector(42.6, -25.9, 0), Vector(42.6, -27.9, 0)),  # 40
    Part.LineSegment(Vector(42.6, -27.9, 0), Vector(40.6, -27.9, 0)),  # 41
    Part.LineSegment(Vector(40.6, -27.9, 0), Vector(40.6, -29.9, 0)),  # 42
    Part.LineSegment(Vector(40.6, -29.9, 0), Vector(42.6, -29.9, 0)),  # 43
    Part.LineSegment(Vector(40.6, -8.6, 0), Vector(40.6, -10.6, 0)),  # 44
    Part.LineSegment(Vector(40.6, -10.6, 0), Vector(46.6, -10.6, 0)),  # 45
    Part.LineSegment(Vector(46.6, -10.6, 0), Vector(46.6, -8.6, 0)),  # 46
    Part.LineSegment(Vector(46.6, -8.6, 0), Vector(40.6, -8.6, 0)),  # 47
    Part.LineSegment(Vector(42.6, 8.6, 0), Vector(42.6, 6.6, 0)),  # 48
    Part.LineSegment(Vector(42.6, 6.6, 0), Vector(44.6, 6.6, 0)),  # 49
    Part.LineSegment(Vector(44.6, 6.6, 0), Vector(44.6, 8.6, 0)),  # 50
    Part.LineSegment(Vector(44.6, 8.6, 0), Vector(46.6, 8.6, 0)),  # 51
    Part.LineSegment(Vector(46.6, 8.6, 0), Vector(46.6, 10.6, 0)),  # 52
    Part.LineSegment(Vector(46.6, 10.6, 0), Vector(44.6, 10.6, 0)),  # 53
    Part.LineSegment(Vector(44.6, 10.6, 0), Vector(44.6, 12.6, 0)),  # 54
    Part.LineSegment(Vector(44.6, 12.6, 0), Vector(42.6, 12.6, 0)),  # 55
    Part.LineSegment(Vector(42.6, 12.6, 0), Vector(42.6, 10.6, 0)),  # 56
    Part.LineSegment(Vector(42.6, 10.6, 0), Vector(40.6, 10.6, 0)),  # 57
    Part.LineSegment(Vector(40.6, 10.6, 0), Vector(40.6, 8.6, 0)),  # 58
    Part.LineSegment(Vector(40.6, 8.6, 0), Vector(42.6, 8.6, 0)),  # 59
    Part.LineSegment(Vector(40.6, 29.9, 0), Vector(40.6, 27.9, 0)),  # 60
    Part.LineSegment(Vector(40.6, 27.9, 0), Vector(46.6, 27.9, 0)),  # 61
    Part.LineSegment(Vector(46.6, 27.9, 0), Vector(46.6, 29.9, 0)),  # 62
    Part.LineSegment(Vector(46.6, 29.9, 0), Vector(40.6, 29.9, 0)),  # 63
], False)
sketch4.addConstraint([
    Sketcher.Constraint("Coincident", 0, 2, 1, 1),
    Sketcher.Constraint("Coincident", 1, 2, 2, 1),
    Sketcher.Constraint("Coincident", 2, 2, 3, 1),
    Sketcher.Constraint("Coincident", 3, 2, 0, 1),
    Sketcher.Constraint("Coincident", 4, 2, 5, 1),
    Sketcher.Constraint("Coincident", 5, 2, 6, 1),
    Sketcher.Constraint("Coincident", 6, 2, 7, 1),
    Sketcher.Constraint("Coincident", 7, 2, 8, 1),
    Sketcher.Constraint("Coincident", 8, 2, 9, 1),
    Sketcher.Constraint("Coincident", 9, 2, 10, 1),
    Sketcher.Constraint("Coincident", 10, 2, 11, 1),
    Sketcher.Constraint("Coincident", 11, 2, 12, 1),
    Sketcher.Constraint("Coincident", 12, 2, 13, 1),
    Sketcher.Constraint("Coincident", 13, 2, 14, 1),
    Sketcher.Constraint("Coincident", 14, 2, 15, 1),
    Sketcher.Constraint("Coincident", 15, 2, 4, 1),
    Sketcher.Constraint("Coincident", 16, 2, 17, 1),
    Sketcher.Constraint("Coincident", 17, 2, 18, 1),
    Sketcher.Constraint("Coincident", 18, 2, 19, 1),
    Sketcher.Constraint("Coincident", 19, 2, 20, 1),
    Sketcher.Constraint("Coincident", 20, 2, 21, 1),
    Sketcher.Constraint("Coincident", 21, 2, 22, 1),
    Sketcher.Constraint("Coincident", 22, 2, 23, 1),
    Sketcher.Constraint("Coincident", 23, 2, 24, 1),
    Sketcher.Constraint("Coincident", 24, 2, 25, 1),
    Sketcher.Constraint("Coincident", 25, 2, 26, 1),
    Sketcher.Constraint("Coincident", 26, 2, 27, 1),
    Sketcher.Constraint("Coincident", 27, 2, 16, 1),
    Sketcher.Constraint("Coincident", 28, 2, 29, 1),
    Sketcher.Constraint("Coincident", 29, 2, 30, 1),
    Sketcher.Constraint("Coincident", 30, 2, 31, 1),
    Sketcher.Constraint("Coincident", 31, 2, 28, 1),
    Sketcher.Constraint("Coincident", 32, 2, 33, 1),
    Sketcher.Constraint("Coincident", 33, 2, 34, 1),
    Sketcher.Constraint("Coincident", 34, 2, 35, 1),
    Sketcher.Constraint("Coincident", 35, 2, 36, 1),
    Sketcher.Constraint("Coincident", 36, 2, 37, 1),
    Sketcher.Constraint("Coincident", 37, 2, 38, 1),
    Sketcher.Constraint("Coincident", 38, 2, 39, 1),
    Sketcher.Constraint("Coincident", 39, 2, 40, 1),
    Sketcher.Constraint("Coincident", 40, 2, 41, 1),
    Sketcher.Constraint("Coincident", 41, 2, 42, 1),
    Sketcher.Constraint("Coincident", 42, 2, 43, 1),
    Sketcher.Constraint("Coincident", 43, 2, 32, 1),
    Sketcher.Constraint("Coincident", 44, 2, 45, 1),
    Sketcher.Constraint("Coincident", 45, 2, 46, 1),
    Sketcher.Constraint("Coincident", 46, 2, 47, 1),
    Sketcher.Constraint("Coincident", 47, 2, 44, 1),
    Sketcher.Constraint("Coincident", 48, 2, 49, 1),
    Sketcher.Constraint("Coincident", 49, 2, 50, 1),
    Sketcher.Constraint("Coincident", 50, 2, 51, 1),
    Sketcher.Constraint("Coincident", 51, 2, 52, 1),
    Sketcher.Constraint("Coincident", 52, 2, 53, 1),
    Sketcher.Constraint("Coincident", 53, 2, 54, 1),
    Sketcher.Constraint("Coincident", 54, 2, 55, 1),
    Sketcher.Constraint("Coincident", 55, 2, 56, 1),
    Sketcher.Constraint("Coincident", 56, 2, 57, 1),
    Sketcher.Constraint("Coincident", 57, 2, 58, 1),
    Sketcher.Constraint("Coincident", 58, 2, 59, 1),
    Sketcher.Constraint("Coincident", 59, 2, 48, 1),
    Sketcher.Constraint("Coincident", 60, 2, 61, 1),
    Sketcher.Constraint("Coincident", 61, 2, 62, 1),
    Sketcher.Constraint("Coincident", 62, 2, 63, 1),
    Sketcher.Constraint("Coincident", 63, 2, 60, 1),
    Sketcher.Constraint("Vertical", 0),
    Sketcher.Constraint("Horizontal", 1),
    Sketcher.Constraint("Vertical", 2),
    Sketcher.Constraint("Horizontal", 3),
    Sketcher.Constraint("Vertical", 4),
    Sketcher.Constraint("Horizontal", 5),
    Sketcher.Constraint("Vertical", 6),
    Sketcher.Constraint("Horizontal", 7),
    Sketcher.Constraint("Vertical", 8),
    Sketcher.Constraint("Horizontal", 9),
    Sketcher.Constraint("Vertical", 10),
    Sketcher.Constraint("Horizontal", 11),
    Sketcher.Constraint("Vertical", 12),
    Sketcher.Constraint("Horizontal", 13),
    Sketcher.Constraint("Vertical", 14),
    Sketcher.Constraint("Horizontal", 15),
    Sketcher.Constraint("Vertical", 16),
    Sketcher.Constraint("Horizontal", 17),
    Sketcher.Constraint("Vertical", 18),
    Sketcher.Constraint("Horizontal", 19),
    Sketcher.Constraint("Vertical", 20),
    Sketcher.Constraint("Horizontal", 21),
    Sketcher.Constraint("Vertical", 22),
    Sketcher.Constraint("Horizontal", 23),
    Sketcher.Constraint("Vertical", 24),
    Sketcher.Constraint("Horizontal", 25),
    Sketcher.Constraint("Vertical", 26),
    Sketcher.Constraint("Horizontal", 27),
    Sketcher.Constraint("Vertical", 28),
    Sketcher.Constraint("Horizontal", 29),
    Sketcher.Constraint("Vertical", 30),
    Sketcher.Constraint("Horizontal", 31),
    Sketcher.Constraint("Vertical", 32),
    Sketcher.Constraint("Horizontal", 33),
    Sketcher.Constraint("Vertical", 34),
    Sketcher.Constraint("Horizontal", 35),
    Sketcher.Constraint("Vertical", 36),
    Sketcher.Constraint("Horizontal", 37),
    Sketcher.Constraint("Vertical", 38),
    Sketcher.Constraint("Horizontal", 39),
    Sketcher.Constraint("Vertical", 40),
    Sketcher.Constraint("Horizontal", 41),
    Sketcher.Constraint("Vertical", 42),
    Sketcher.Constraint("Horizontal", 43),
    Sketcher.Constraint("Vertical", 44),
    Sketcher.Constraint("Horizontal", 45),
    Sketcher.Constraint("Vertical", 46),
    Sketcher.Constraint("Horizontal", 47),
    Sketcher.Constraint("Vertical", 48),
    Sketcher.Constraint("Horizontal", 49),
    Sketcher.Constraint("Vertical", 50),
    Sketcher.Constraint("Horizontal", 51),
    Sketcher.Constraint("Vertical", 52),
    Sketcher.Constraint("Horizontal", 53),
    Sketcher.Constraint("Vertical", 54),
    Sketcher.Constraint("Horizontal", 55),
    Sketcher.Constraint("Vertical", 56),
    Sketcher.Constraint("Horizontal", 57),
    Sketcher.Constraint("Vertical", 58),
    Sketcher.Constraint("Horizontal", 59),
    Sketcher.Constraint("Vertical", 60),
    Sketcher.Constraint("Horizontal", 61),
    Sketcher.Constraint("Vertical", 62),
    Sketcher.Constraint("Horizontal", 63),
    Sketcher.Constraint("Symmetric", 12, 2, 32, 2, -1, 1),
    Sketcher.Constraint("Symmetric", 14, 2, 34, 2, -1, 1),
    Sketcher.Constraint("Symmetric", 4, 2, 36, 2, -1, 1),
    Sketcher.Constraint("Symmetric", 6, 2, 38, 2, -1, 1),
    Sketcher.Constraint("Symmetric", 8, 2, 40, 2, -1, 1),
    Sketcher.Constraint("Symmetric", 10, 2, 42, 2, -1, 1),
    Sketcher.Constraint("Symmetric", 2, 2, 44, 2, -1, 1),
    Sketcher.Constraint("Symmetric", 0, 2, 46, 2, -1, 1),
    Sketcher.Constraint("Symmetric", 24, 2, 48, 2, -1, 1),
    Sketcher.Constraint("Symmetric", 26, 2, 50, 2, -1, 1),
    Sketcher.Constraint("Symmetric", 16, 2, 52, 2, -1, 1),
    Sketcher.Constraint("Symmetric", 18, 2, 54, 2, -1, 1),
    Sketcher.Constraint("Symmetric", 20, 2, 56, 2, -1, 1),
    Sketcher.Constraint("Symmetric", 22, 2, 58, 2, -1, 1),
    Sketcher.Constraint("Symmetric", 30, 2, 60, 2, -1, 1),
    Sketcher.Constraint("Symmetric", 28, 2, 62, 2, -1, 1),
    Sketcher.Constraint("Symmetric", 28, 2, 35, 2, -2),
    Sketcher.Constraint("Symmetric", 30, 2, 41, 2, -2),
    Sketcher.Constraint("Symmetric", 21, 2, 44, 2, -2),
    Sketcher.Constraint("Symmetric", 16, 2, 45, 2, -2),
    Sketcher.Constraint("Horizontal", 5, 2, 8, 2),
    Sketcher.Constraint("Horizontal", 11, 2, 14, 2),
    Sketcher.Constraint("Horizontal", 23, 2, 26, 2),
    Sketcher.Constraint("Horizontal", 27, 2, 46, 2),
    Sketcher.Constraint("Vertical", 3, 2, 4, 2),
    Sketcher.Constraint("Vertical", 2, 2, 9, 2),
    Sketcher.Constraint("Vertical", 8, 2, 11, 2),
    Sketcher.Constraint("Vertical", 6, 2, 13, 2),
    Sketcher.Constraint("Vertical", 14, 2, 17, 2),
    Sketcher.Constraint("Vertical", 12, 2, 19, 2),
    Sketcher.Constraint("Vertical", 20, 2, 23, 2),
    Sketcher.Constraint("Vertical", 18, 2, 25, 2),
    Sketcher.Constraint("Equal", 5, 7),
    Sketcher.Constraint("Equal", 7, 9),
    Sketcher.Constraint("Equal", 59, 0),
    Sketcher.Constraint("Equal", 2, 4),
    Sketcher.Constraint("Equal", 4, 6),
    Sketcher.Constraint("Equal", 10, 12),
    Sketcher.Constraint("Equal", 16, 18),
    Sketcher.Constraint("Equal", 22, 24),
    Sketcher.Constraint("DistanceX", 1, 1, 1, 2, 6.0),
    Sketcher.Constraint("DistanceX", 0, 2, -1, 1, 46.625),
    Sketcher.Constraint("DistanceY", -1, 1, 0, 2, 8.625),
    Sketcher.Constraint("DistanceY", -1, 1, 4, 2, 27.875),
])
pocket3 = doc.addObject("PartDesign::Pocket", "Pocket002")
body.addObject(pocket3)
pocket3.Profile = sketch4
pocket3.Length = 1

doc.recompute()
